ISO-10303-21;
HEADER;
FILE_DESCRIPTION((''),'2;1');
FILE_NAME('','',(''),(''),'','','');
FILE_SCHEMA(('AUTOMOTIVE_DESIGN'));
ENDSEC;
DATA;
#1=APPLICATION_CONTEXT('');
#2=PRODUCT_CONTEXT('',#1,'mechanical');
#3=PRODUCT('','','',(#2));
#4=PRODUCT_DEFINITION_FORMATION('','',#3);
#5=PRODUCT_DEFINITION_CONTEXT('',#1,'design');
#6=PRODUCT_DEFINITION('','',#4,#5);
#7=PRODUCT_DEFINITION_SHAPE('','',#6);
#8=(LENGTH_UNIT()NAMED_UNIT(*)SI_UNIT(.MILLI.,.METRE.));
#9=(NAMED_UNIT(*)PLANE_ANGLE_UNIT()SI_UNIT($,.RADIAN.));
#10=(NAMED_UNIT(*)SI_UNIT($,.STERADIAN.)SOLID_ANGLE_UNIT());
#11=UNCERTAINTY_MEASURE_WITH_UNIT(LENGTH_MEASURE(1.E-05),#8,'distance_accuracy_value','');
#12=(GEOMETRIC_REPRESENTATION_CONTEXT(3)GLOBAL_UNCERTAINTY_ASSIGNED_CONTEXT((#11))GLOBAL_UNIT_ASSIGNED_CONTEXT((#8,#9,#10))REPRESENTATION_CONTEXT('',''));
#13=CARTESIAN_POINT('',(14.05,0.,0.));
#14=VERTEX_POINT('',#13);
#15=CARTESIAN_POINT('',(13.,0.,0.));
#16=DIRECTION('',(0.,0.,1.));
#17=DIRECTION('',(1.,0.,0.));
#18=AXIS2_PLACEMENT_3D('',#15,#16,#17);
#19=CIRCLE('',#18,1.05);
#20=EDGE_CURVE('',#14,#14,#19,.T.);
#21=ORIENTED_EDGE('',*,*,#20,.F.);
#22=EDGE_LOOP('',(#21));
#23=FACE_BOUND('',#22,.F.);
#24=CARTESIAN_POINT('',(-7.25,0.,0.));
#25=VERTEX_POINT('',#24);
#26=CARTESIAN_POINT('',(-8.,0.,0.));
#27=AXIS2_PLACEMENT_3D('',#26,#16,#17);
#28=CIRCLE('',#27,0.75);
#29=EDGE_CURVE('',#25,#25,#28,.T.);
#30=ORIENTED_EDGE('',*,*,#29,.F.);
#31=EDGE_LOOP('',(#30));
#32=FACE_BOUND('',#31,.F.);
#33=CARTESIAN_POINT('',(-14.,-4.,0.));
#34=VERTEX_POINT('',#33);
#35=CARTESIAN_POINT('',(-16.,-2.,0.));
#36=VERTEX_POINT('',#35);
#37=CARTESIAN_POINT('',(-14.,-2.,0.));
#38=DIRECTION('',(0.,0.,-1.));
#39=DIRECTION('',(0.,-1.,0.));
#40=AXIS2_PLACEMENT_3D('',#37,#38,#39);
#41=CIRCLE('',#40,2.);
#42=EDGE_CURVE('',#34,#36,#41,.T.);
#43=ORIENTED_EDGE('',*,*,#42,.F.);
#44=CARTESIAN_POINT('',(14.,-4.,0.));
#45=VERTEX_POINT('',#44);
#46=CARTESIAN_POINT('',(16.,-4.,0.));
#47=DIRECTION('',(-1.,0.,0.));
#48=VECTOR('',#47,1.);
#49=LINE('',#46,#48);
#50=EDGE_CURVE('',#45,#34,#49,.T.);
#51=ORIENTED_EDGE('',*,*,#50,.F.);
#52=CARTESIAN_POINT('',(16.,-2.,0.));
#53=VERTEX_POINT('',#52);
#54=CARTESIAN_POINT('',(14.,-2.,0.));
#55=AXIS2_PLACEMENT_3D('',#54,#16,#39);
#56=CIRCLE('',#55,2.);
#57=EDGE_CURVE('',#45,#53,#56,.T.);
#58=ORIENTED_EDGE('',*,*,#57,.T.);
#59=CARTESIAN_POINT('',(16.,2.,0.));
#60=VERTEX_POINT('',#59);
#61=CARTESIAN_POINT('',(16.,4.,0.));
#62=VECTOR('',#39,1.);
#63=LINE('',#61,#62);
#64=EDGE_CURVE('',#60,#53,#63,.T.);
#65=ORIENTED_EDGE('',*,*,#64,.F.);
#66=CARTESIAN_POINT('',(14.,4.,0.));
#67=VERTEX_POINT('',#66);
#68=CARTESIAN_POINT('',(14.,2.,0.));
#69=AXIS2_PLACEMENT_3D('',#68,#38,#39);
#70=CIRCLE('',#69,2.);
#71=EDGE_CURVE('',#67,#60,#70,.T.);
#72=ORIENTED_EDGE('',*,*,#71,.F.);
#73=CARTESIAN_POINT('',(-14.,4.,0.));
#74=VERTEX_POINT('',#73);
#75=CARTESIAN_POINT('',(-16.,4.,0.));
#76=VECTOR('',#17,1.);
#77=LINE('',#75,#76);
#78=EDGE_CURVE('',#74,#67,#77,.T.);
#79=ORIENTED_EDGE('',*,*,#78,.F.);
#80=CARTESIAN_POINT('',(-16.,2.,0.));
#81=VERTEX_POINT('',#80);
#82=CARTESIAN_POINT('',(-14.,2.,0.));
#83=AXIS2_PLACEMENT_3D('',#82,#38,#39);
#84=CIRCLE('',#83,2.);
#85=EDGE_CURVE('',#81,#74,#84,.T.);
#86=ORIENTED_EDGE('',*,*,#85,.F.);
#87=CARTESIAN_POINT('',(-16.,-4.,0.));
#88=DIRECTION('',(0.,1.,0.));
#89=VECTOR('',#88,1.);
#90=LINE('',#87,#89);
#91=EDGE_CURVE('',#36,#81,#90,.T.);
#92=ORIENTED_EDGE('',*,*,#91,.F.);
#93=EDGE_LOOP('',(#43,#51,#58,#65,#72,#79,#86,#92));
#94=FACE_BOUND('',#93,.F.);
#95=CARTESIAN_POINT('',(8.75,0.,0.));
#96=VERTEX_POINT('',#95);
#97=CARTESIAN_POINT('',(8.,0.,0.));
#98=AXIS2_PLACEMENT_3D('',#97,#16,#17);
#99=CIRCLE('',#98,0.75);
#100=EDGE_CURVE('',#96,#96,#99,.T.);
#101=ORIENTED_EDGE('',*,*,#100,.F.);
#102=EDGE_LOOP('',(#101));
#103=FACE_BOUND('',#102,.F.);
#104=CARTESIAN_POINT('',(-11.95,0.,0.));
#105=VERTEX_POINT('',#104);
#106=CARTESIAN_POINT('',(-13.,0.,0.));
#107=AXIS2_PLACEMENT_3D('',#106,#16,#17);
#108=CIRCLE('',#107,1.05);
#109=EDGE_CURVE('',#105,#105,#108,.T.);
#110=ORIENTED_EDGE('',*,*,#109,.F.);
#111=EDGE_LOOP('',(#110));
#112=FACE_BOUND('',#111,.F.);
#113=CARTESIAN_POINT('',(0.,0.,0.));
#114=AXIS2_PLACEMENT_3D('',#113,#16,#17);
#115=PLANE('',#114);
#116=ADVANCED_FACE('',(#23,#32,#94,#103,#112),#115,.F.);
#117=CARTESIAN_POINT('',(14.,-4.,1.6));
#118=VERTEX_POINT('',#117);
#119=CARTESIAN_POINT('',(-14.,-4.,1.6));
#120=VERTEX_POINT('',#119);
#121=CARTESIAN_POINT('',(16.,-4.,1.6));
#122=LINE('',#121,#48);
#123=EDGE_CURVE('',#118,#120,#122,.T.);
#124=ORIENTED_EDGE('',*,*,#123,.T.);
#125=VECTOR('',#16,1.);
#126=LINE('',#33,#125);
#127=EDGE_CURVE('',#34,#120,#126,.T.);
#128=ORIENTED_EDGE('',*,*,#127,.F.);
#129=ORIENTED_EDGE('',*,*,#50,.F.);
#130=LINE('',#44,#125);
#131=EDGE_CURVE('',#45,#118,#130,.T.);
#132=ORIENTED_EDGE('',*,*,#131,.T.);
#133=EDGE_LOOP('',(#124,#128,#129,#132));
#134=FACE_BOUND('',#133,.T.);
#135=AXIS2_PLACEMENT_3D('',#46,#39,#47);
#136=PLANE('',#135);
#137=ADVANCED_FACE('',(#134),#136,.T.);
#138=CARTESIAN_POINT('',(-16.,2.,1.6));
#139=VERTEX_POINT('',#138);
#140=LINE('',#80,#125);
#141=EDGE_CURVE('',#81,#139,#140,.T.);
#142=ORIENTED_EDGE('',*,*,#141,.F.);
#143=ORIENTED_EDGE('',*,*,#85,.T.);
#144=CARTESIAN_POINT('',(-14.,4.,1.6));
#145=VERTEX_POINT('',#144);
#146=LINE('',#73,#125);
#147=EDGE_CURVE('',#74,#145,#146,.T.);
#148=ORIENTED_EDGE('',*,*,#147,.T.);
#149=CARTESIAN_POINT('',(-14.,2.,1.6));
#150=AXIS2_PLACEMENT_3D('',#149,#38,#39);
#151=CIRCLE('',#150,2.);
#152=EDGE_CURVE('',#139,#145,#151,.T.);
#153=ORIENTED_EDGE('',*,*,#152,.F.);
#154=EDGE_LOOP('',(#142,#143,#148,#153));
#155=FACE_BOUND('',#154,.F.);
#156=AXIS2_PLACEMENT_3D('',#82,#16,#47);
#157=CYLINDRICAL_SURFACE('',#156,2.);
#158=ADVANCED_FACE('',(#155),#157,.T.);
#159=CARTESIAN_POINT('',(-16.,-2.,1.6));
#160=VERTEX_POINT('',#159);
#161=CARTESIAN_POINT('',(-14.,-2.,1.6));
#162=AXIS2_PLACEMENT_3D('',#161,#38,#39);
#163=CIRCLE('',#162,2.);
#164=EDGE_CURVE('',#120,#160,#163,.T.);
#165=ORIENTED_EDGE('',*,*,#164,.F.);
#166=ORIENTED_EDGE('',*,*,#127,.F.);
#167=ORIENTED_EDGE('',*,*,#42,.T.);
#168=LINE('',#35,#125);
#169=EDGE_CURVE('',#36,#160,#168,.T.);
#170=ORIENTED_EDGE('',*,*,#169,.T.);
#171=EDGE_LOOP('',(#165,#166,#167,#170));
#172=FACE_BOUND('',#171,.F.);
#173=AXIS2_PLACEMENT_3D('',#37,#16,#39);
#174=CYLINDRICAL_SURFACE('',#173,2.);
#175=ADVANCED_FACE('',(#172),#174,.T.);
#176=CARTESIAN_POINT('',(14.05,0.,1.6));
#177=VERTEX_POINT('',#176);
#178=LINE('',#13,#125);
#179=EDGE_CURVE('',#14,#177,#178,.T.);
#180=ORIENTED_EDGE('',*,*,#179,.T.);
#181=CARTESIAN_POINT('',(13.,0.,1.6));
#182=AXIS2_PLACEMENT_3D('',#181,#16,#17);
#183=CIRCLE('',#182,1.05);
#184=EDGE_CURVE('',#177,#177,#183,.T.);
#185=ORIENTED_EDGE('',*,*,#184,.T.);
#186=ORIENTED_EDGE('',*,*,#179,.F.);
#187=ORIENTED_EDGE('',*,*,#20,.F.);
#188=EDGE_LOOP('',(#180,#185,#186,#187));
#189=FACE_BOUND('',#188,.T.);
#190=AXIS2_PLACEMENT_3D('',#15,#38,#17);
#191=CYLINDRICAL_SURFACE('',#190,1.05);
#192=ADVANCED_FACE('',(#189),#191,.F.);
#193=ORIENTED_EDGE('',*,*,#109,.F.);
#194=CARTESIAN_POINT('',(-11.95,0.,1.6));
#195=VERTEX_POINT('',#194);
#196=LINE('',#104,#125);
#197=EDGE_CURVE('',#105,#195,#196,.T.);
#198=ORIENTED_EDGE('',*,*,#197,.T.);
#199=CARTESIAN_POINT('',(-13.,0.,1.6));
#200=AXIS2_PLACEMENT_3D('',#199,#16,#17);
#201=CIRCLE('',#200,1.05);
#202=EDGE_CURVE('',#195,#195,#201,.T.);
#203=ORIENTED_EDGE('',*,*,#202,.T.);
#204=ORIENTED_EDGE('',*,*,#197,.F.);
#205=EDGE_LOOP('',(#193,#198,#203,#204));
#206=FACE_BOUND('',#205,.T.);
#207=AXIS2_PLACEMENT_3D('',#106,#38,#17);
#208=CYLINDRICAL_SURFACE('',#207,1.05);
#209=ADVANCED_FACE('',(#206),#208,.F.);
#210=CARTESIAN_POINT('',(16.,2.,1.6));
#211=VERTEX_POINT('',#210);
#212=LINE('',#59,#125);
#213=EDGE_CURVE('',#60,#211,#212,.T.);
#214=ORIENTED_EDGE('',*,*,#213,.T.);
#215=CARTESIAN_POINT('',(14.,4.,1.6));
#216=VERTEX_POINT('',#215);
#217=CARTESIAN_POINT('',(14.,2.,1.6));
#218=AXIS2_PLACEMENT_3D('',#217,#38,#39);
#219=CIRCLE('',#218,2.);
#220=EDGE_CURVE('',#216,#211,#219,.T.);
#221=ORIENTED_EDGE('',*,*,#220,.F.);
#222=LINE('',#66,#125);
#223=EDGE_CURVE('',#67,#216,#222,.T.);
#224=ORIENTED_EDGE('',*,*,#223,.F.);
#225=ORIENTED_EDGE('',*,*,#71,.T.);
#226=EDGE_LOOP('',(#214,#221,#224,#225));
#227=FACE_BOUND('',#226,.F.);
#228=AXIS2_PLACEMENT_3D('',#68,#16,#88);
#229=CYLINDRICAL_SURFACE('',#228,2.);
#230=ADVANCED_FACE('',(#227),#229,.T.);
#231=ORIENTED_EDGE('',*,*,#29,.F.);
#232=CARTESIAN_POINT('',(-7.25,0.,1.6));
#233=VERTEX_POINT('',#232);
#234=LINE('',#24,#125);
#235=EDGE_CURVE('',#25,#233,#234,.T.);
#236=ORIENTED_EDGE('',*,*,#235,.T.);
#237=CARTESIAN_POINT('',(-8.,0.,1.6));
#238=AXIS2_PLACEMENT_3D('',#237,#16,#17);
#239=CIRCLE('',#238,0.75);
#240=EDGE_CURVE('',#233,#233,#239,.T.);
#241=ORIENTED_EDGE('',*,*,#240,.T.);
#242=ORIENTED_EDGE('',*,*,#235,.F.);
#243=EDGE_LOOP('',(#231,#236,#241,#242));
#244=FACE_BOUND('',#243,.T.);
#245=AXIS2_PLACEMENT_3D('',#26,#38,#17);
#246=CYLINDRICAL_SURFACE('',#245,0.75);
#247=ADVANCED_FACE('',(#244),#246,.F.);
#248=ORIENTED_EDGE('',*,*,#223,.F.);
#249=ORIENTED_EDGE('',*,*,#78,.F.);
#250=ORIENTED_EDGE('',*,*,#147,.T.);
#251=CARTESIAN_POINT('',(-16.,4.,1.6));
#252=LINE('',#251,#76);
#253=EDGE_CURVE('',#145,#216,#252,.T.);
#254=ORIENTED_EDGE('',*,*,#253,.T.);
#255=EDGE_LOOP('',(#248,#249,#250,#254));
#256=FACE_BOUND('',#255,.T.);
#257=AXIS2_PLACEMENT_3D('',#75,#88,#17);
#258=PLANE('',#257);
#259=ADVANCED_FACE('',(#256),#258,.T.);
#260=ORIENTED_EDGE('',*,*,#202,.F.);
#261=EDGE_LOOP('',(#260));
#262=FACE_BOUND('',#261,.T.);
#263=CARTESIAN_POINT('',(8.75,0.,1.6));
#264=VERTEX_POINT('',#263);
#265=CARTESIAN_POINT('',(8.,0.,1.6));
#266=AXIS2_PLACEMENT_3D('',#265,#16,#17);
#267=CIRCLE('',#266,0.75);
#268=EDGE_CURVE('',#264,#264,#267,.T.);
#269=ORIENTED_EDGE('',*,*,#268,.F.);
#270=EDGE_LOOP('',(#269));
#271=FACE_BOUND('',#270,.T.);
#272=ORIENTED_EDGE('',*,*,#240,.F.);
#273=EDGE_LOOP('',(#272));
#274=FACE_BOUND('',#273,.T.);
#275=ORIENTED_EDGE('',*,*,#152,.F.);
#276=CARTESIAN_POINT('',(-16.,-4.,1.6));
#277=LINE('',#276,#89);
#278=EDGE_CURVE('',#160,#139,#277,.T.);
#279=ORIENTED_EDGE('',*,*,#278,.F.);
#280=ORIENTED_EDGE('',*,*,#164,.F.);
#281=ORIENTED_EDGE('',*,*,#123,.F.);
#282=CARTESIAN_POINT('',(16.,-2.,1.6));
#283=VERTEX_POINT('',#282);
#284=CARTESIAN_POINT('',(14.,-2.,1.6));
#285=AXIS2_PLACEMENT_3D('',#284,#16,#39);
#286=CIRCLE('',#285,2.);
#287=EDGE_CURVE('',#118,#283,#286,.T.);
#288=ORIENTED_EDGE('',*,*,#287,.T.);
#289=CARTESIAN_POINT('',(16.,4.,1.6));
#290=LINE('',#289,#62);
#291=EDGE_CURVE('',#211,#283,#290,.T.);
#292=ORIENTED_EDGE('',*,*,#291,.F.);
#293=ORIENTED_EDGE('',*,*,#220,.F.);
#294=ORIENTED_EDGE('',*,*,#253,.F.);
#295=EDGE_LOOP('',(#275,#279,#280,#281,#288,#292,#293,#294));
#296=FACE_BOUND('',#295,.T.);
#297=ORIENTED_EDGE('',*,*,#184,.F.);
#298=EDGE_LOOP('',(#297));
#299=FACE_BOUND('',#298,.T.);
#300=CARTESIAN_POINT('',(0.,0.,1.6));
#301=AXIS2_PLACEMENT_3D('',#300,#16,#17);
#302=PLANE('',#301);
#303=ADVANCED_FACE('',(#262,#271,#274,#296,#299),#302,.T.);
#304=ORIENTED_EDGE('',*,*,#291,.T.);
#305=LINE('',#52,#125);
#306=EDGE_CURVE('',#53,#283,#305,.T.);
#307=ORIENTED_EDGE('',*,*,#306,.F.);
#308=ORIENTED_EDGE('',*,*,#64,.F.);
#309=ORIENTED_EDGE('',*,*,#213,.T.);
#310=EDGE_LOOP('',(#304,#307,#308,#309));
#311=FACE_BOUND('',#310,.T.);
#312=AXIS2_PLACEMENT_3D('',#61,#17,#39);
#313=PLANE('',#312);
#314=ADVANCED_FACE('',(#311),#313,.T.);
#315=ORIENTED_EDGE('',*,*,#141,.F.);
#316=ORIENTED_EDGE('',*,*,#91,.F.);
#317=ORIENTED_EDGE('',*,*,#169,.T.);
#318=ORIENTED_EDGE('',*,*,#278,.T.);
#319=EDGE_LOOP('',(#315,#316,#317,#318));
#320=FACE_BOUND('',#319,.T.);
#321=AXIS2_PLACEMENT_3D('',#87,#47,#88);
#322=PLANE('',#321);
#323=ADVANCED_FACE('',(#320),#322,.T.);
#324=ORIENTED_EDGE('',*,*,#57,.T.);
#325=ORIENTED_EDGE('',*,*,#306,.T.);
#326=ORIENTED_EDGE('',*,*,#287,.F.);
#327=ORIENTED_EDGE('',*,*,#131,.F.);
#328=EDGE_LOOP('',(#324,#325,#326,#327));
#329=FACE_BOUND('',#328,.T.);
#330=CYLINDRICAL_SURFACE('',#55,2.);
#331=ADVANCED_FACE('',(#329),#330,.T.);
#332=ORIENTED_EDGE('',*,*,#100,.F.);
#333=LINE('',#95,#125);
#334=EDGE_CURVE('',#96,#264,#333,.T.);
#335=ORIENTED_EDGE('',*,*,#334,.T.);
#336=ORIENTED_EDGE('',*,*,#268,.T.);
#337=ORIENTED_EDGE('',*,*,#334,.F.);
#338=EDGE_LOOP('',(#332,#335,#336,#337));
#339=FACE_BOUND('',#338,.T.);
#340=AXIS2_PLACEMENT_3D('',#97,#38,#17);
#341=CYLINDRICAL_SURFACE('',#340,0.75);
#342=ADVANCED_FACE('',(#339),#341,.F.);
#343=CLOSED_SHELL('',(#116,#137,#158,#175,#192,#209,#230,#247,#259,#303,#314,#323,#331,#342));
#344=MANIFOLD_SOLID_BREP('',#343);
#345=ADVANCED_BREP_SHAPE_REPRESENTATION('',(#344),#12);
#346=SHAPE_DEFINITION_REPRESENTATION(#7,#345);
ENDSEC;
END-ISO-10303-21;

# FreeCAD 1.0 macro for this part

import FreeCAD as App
import Part
import Sketcher

V = App.Vector
Q = App.Units.Quantity


def edges_at(feature, points):
    """Names of the edges that pass closest to the given points."""
    edges = feature.Shape.Edges
    near = lambda p: min(range(len(edges)), key=lambda i: edges[i].distToShape(Part.Vertex(*p))[0])
    return sorted({f"Edge{near(p) + 1}" for p in points})


def add_polygon(sketch, points):
    """Adds a closed chain of lines whose ends are joined by coincident constraints."""
    first, n = sketch.GeometryCount, len(points)
    for a, b in zip(points, points[1:] + points[:1]):
        sketch.addGeometry(Part.LineSegment(App.Vector(*a, 0), App.Vector(*b, 0)), False)
    for i in range(n):
        sketch.addConstraint(Sketcher.Constraint("Coincident", first + i, 2, first + (i + 1) % n, 1))

doc = App.newDocument("Part")
body = doc.addObject("PartDesign::Body", "Body")

sketch1 = body.newObject("Sketcher::SketchObject", "Sketch")
sketch1.AttachmentSupport = (doc.getObject("XY_Plane"), [""])
sketch1.MapMode = "FlatFace"
add_polygon(sketch1, [(-16, -4), (16, -4), (16, 4), (-16, 4)])
sketch1.addGeometry(Part.Circle(V(-13, 0, 0), V(0, 0, 1), 1.1), False)
sketch1.addGeometry(Part.Circle(V(-8, 0, 0), V(0, 0, 1), 0.8), False)
sketch1.addGeometry(Part.Circle(V(8, 0, 0), V(0, 0, 1), 0.8), False)
sketch1.addGeometry(Part.Circle(V(13, 0, 0), V(0, 0, 1), 1.1), False)
sketch1.addConstraint(Sketcher.Constraint("Horizontal", 0))
sketch1.addConstraint(Sketcher.Constraint("Vertical", 1))
sketch1.addConstraint(Sketcher.Constraint("Horizontal", 2))
sketch1.addConstraint(Sketcher.Constraint("Vertical", 3))
sketch1.addConstraint(Sketcher.Constraint("Equal", 5, 6))
sketch1.addConstraint(Sketcher.Constraint("Equal", 4, 7))
sketch1.addConstraint(Sketcher.Constraint("Symmetric", 5, 3, 6, 3, -1, 1))
sketch1.addConstraint(Sketcher.Constraint("Symmetric", 4, 3, 7, 3, -1, 1))
sketch1.addConstraint(Sketcher.Constraint("Symmetric", 0, 2, 2, 2, -1, 1))
sketch1.addConstraint(Sketcher.Constraint("PointOnObject", 4, 3, -1))
sketch1.addConstraint(Sketcher.Constraint("PointOnObject", 5, 3, -1))
sketch1.addConstraint(Sketcher.Constraint("Diameter", 4, Q("2.1 mm")))
sketch1.addConstraint(Sketcher.Constraint("Diameter", 5, Q("1.5 mm")))
sketch1.addConstraint(Sketcher.Constraint("DistanceY", 1, 1, 1, 2, Q("8 mm")))
sketch1.addConstraint(Sketcher.Constraint("DistanceX", 4, 3, -1, 1, Q("13 mm")))
sketch1.addConstraint(Sketcher.Constraint("DistanceX", 5, 3, -1, 1, Q("8 mm")))
sketch1.addConstraint(Sketcher.Constraint("DistanceX", 7, 3, 0, 2, Q("3 mm")))
pad1 = body.newObject("PartDesign::Pad", "Pad")
pad1.Profile = sketch1
pad1.Length = 1.6
doc.recompute()

fillet = body.newObject("PartDesign::Fillet", "Fillet")
fillet.Base = (pad1, edges_at(pad1, [
    (-16, 4, 0.8),
    (16, 4, 0.8),
    (16, -4, 0.8),
    (-16, -4, 0.8),
]))
fillet.Radius = 2

doc.recompute()
